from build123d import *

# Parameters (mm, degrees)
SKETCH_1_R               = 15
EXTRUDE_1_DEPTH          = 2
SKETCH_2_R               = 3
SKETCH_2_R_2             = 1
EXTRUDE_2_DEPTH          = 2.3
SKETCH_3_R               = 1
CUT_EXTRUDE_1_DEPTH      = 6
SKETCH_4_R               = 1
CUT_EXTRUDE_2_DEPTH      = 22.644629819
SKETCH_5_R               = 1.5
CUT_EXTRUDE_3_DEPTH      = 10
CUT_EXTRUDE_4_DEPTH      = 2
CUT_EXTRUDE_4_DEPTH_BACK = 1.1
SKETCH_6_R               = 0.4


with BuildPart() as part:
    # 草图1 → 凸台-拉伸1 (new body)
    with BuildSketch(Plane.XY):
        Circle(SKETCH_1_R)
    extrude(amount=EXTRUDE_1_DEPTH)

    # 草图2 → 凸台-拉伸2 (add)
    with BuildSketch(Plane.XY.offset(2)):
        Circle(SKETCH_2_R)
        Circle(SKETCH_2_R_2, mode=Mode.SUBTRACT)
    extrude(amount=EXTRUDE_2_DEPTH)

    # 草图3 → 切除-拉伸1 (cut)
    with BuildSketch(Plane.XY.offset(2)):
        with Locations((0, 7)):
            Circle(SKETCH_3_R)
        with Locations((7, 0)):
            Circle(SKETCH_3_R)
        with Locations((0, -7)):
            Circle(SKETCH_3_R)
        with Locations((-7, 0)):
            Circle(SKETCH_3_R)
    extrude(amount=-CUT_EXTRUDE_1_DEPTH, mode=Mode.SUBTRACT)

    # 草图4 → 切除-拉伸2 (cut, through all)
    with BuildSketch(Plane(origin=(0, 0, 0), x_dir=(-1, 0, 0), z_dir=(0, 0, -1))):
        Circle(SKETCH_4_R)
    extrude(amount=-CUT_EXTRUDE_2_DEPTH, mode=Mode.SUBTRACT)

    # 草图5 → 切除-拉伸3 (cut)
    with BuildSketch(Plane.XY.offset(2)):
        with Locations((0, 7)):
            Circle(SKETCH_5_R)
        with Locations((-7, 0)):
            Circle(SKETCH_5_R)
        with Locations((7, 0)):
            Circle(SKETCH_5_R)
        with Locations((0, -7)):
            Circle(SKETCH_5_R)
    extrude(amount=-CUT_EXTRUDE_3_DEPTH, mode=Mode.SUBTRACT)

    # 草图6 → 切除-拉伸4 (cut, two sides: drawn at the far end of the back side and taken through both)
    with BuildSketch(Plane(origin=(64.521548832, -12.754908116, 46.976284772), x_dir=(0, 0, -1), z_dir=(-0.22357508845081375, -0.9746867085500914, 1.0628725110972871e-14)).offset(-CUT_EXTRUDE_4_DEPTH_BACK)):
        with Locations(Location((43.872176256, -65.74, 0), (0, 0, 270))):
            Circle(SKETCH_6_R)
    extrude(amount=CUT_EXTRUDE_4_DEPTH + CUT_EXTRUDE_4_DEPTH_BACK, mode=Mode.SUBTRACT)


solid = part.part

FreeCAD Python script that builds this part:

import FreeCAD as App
import Part
import Sketcher

V = App.Vector

doc = App.newDocument("Part")
body = doc.addObject("PartDesign::Body", "Body")

sketch1 = body.newObject("Sketcher::SketchObject", "Sketch")
sketch1.AttachmentSupport = (doc.getObject("XY_Plane"), [""])
sketch1.MapMode = "FlatFace"
sketch1.addGeometry(Part.Circle(V(0, 0, 0), V(0, 0, 1), 15), False)
sketch1.addConstraint(Sketcher.Constraint("Coincident", 0, 3, -1, 1))
sketch1.addConstraint(Sketcher.Constraint("Diameter", 0, 30.0))
pad1 = body.newObject("PartDesign::Pad", "Pad")
pad1.Profile = sketch1
pad1.Length = 2

sketch2 = body.newObject("Sketcher::SketchObject", "Sketch001")
sketch2.AttachmentSupport = (doc.getObject("XY_Plane"), [""])
sketch2.MapMode = "FlatFace"
sketch2.AttachmentOffset = App.Placement(V(0, 0, 2), App.Rotation())
sketch2.addGeometry(Part.Circle(V(0, 0, 0), V(0, 0, 1), 3), False)
sketch2.addGeometry(Part.Circle(V(0, 0, 0), V(0, 0, 1), 1), False)
sketch2.addConstraint(Sketcher.Constraint("Coincident", 0, 3, -1, 1))
sketch2.addConstraint(Sketcher.Constraint("Coincident", 1, 3, -1, 1))
sketch2.addConstraint(Sketcher.Constraint("Diameter", 0, 6.0))
sketch2.addConstraint(Sketcher.Constraint("Diameter", 1, 2.0))
pad2 = body.newObject("PartDesign::Pad", "Pad001")
pad2.Profile = sketch2
pad2.Length = 2.3

sketch3 = body.newObject("Sketcher::SketchObject", "Sketch002")
sketch3.AttachmentSupport = (doc.getObject("XY_Plane"), [""])
sketch3.MapMode = "FlatFace"
sketch3.AttachmentOffset = App.Placement(V(0, 0, 2), App.Rotation())
sketch3.addGeometry(Part.Circle(V(0, 7, 0), V(0, 0, 1), 1), False)
sketch3.addGeometry(Part.Circle(V(7, 0, 0), V(0, 0, 1), 1), False)
sketch3.addGeometry(Part.Circle(V(0, -7, 0), V(0, 0, 1), 1), False)
sketch3.addGeometry(Part.Circle(V(-7, 0, 0), V(0, 0, 1), 1), False)
sketch3.addConstraint(Sketcher.Constraint("Equal", 0, 1))
sketch3.addConstraint(Sketcher.Constraint("Equal", 1, 2))
sketch3.addConstraint(Sketcher.Constraint("Equal", 2, 3))
sketch3.addConstraint(Sketcher.Constraint("Symmetric", 0, 3, 2, 3, -1, 1))
sketch3.addConstraint(Sketcher.Constraint("Symmetric", 1, 3, 3, 3, -1, 1))
sketch3.addConstraint(Sketcher.Constraint("PointOnObject", 0, 3, -2))
sketch3.addConstraint(Sketcher.Constraint("PointOnObject", 1, 3, -1))
sketch3.addConstraint(Sketcher.Constraint("Diameter", 0, 2.0))
sketch3.addConstraint(Sketcher.Constraint("DistanceY", -1, 1, 0, 3, 7.0))
sketch3.addConstraint(Sketcher.Constraint("DistanceX", -1, 1, 1, 3, 7.0))
pocket1 = body.newObject("PartDesign::Pocket", "Pocket")
pocket1.Profile = sketch3
pocket1.Length = 6

sketch4 = body.newObject("Sketcher::SketchObject", "Sketch003")
sketch4.AttachmentSupport = (doc.getObject("XY_Plane"), [""])
sketch4.MapMode = "FlatFace"
sketch4.addGeometry(Part.Circle(V(0, 0, 0), V(0, 0, 1), 1), False)
sketch4.addConstraint(Sketcher.Constraint("Coincident", 0, 3, -1, 1))
sketch4.addConstraint(Sketcher.Constraint("Diameter", 0, 2.0))
pocket2 = body.newObject("PartDesign::Pocket", "Pocket001")
pocket2.Profile = sketch4
pocket2.Type = "ThroughAll"
pocket2.Reversed = True

sketch5 = body.newObject("Sketcher::SketchObject", "Sketch004")
sketch5.AttachmentSupport = (doc.getObject("XY_Plane"), [""])
sketch5.MapMode = "FlatFace"
sketch5.AttachmentOffset = App.Placement(V(0, 0, 2), App.Rotation())
sketch5.addGeometry(Part.Circle(V(0, 7, 0), V(0, 0, 1), 1.5), False)
sketch5.addGeometry(Part.Circle(V(-7, 0, 0), V(0, 0, 1), 1.5), False)
sketch5.addGeometry(Part.Circle(V(7, 0, 0), V(0, 0, 1), 1.5), False)
sketch5.addGeometry(Part.Circle(V(0, -7, 0), V(0, 0, 1), 1.5), False)
sketch5.addConstraint(Sketcher.Constraint("Equal", 0, 1))
sketch5.addConstraint(Sketcher.Constraint("Equal", 1, 2))
sketch5.addConstraint(Sketcher.Constraint("Equal", 2, 3))
sketch5.addConstraint(Sketcher.Constraint("Symmetric", 1, 3, 2, 3, -1, 1))
sketch5.addConstraint(Sketcher.Constraint("Symmetric", 0, 3, 3, 3, -1, 1))
sketch5.addConstraint(Sketcher.Constraint("PointOnObject", 0, 3, -2))
sketch5.addConstraint(Sketcher.Constraint("PointOnObject", 1, 3, -1))
sketch5.addConstraint(Sketcher.Constraint("Diameter", 0, 3.0))
sketch5.addConstraint(Sketcher.Constraint("DistanceY", -1, 1, 0, 3, 7.0))
sketch5.addConstraint(Sketcher.Constraint("DistanceX", 1, 3, -1, 1, 7.0))
pocket3 = body.newObject("PartDesign::Pocket", "Pocket002")
pocket3.Profile = sketch5
pocket3.Length = 10

sketch6 = body.newObject("Sketcher::SketchObject", "Sketch005")
sketch6.Placement = App.Placement(V(64.521549, -12.754908, 46.976285), App.Rotation(V(0, 0, -1), V(0.974686709, -0.223575088, 0), V(-0.223575088, -0.974686709, 0), "ZXY"))
sketch6.addGeometry(Part.Circle(V(43.872176, -65.74, 0), V(0, 0, 1), 0.4), False)
sketch6.addConstraint(Sketcher.Constraint("Diameter", 0, 0.8))
sketch6.addConstraint(Sketcher.Constraint("DistanceY", 0, 3, -1, 1, 65.74))
sketch6.addConstraint(Sketcher.Constraint("DistanceX", -1, 1, 0, 3, 43.872176))
pocket4 = body.newObject("PartDesign::Pocket", "Pocket003")
pocket4.Profile = sketch6
pocket4.Type = "TwoLengths"
pocket4.Length = 2
pocket4.Length2 = 1.1
pocket4.Reversed = True

doc.recompute()
